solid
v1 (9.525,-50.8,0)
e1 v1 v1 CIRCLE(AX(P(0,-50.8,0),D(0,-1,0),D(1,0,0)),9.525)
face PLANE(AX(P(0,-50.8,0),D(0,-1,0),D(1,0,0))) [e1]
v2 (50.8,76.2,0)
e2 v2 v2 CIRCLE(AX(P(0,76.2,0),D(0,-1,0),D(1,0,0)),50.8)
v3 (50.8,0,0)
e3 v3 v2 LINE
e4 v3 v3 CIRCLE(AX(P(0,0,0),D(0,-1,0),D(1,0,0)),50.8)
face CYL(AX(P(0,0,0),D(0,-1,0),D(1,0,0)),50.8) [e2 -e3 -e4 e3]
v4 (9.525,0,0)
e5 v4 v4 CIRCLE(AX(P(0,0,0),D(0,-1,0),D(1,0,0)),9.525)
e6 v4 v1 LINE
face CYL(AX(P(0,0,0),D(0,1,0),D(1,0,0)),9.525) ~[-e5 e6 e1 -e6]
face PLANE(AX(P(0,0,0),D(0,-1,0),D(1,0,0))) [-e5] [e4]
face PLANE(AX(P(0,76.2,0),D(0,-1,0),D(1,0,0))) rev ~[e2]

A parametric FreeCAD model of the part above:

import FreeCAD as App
import Part
import Sketcher
from FreeCAD import Vector
Q = App.Units.Quantity

doc = App.newDocument("Part")
params = doc.addObject("Spreadsheet::Sheet", "Params")
for row, (alias, value) in enumerate([
    ("sketch1_diameter", "4 in"),
    ("pad1_length", "3 in"),
    ("sketch2_diameter", "0.75 in"),
    ("pad2_length", "2 in"),
], start=1):
    params.set(f"A{row}", alias)
    params.set(f"B{row}", "=" + value)
    params.setAlias(f"B{row}", alias)

body = doc.addObject("PartDesign::Body", "Body")

sketch1 = doc.addObject("Sketcher::SketchObject", "Sketch")
body.addObject(sketch1)
sketch1.AttachmentSupport = (doc.XZ_Plane, [""])
sketch1.MapMode = "FlatFace"
sketch1.addGeometry(Part.Circle(Vector(0, 0, 0), Vector(0, 0, 1), 51), False)
sketch1.addConstraint(Sketcher.Constraint("Coincident", 0, 3, -1, 1))
sketch1.addConstraint(Sketcher.Constraint("Diameter", 0, Q("4 in")))
sketch1.setExpression("Constraints[1]", "Params.sketch1_diameter")
pad1 = doc.addObject("PartDesign::Pad", "Pad")
body.addObject(pad1)
pad1.Profile = sketch1
pad1.setExpression("Length", "Params.pad1_length")
pad1.Reversed = True

sketch2 = doc.addObject("Sketcher::SketchObject", "Sketch001")
body.addObject(sketch2)
sketch2.AttachmentSupport = (doc.XZ_Plane, [""])
sketch2.MapMode = "FlatFace"
sketch2.addGeometry(Part.Circle(Vector(0, 0, 0), Vector(0, 0, 1), 10), False)
sketch2.addConstraint(Sketcher.Constraint("Coincident", 0, 3, -1, 1))
sketch2.addConstraint(Sketcher.Constraint("Diameter", 0, Q("0.75 in")))
sketch2.setExpression("Constraints[1]", "Params.sketch2_diameter")
pad2 = doc.addObject("PartDesign::Pad", "Pad001")
body.addObject(pad2)
pad2.Profile = sketch2
pad2.setExpression("Length", "Params.pad2_length")

doc.recompute()
